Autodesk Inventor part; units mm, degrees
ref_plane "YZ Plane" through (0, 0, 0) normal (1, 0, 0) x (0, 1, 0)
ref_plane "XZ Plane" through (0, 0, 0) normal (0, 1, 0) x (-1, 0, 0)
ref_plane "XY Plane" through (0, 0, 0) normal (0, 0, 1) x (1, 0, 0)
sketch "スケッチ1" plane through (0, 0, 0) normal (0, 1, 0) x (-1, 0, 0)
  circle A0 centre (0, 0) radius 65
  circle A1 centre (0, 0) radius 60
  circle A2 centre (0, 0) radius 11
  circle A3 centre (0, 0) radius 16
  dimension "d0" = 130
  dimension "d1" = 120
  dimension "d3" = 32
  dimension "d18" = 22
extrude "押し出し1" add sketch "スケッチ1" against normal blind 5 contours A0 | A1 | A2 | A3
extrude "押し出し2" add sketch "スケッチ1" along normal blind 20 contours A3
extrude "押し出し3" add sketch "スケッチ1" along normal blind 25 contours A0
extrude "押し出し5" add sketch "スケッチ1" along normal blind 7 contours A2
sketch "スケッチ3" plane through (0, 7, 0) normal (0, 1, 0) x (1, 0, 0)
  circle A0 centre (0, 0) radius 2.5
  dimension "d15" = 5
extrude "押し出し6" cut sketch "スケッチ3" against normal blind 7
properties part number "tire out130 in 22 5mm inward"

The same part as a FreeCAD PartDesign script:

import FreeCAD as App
import Part
import Sketcher
from FreeCAD import Vector

doc = App.newDocument("Part")
body = doc.addObject("PartDesign::Body", "Body")

sketch1 = doc.addObject("Sketcher::SketchObject", "Sketch")
body.addObject(sketch1)
sketch1.AttachmentSupport = (doc.XZ_Plane, [""])
sketch1.MapMode = "FlatFace"
sketch1.addGeometry(Part.Circle(Vector(0, 0, 0), Vector(0, 0, 1), 65), False)
sketch1.addConstraint([
    Sketcher.Constraint("Coincident", 0, 3, -1, 1),
    Sketcher.Constraint("Diameter", 0, 130.0),
])
pad1 = doc.addObject("PartDesign::Pad", "Pad")
body.addObject(pad1)
pad1.Profile = sketch1
pad1.Length = 5

sketch2 = doc.addObject("Sketcher::SketchObject", "Sketch001")
body.addObject(sketch2)
sketch2.AttachmentSupport = (doc.XZ_Plane, [""])
sketch2.MapMode = "FlatFace"
sketch2.addGeometry([
    Part.Circle(Vector(0, 0, 0), Vector(0, 0, 1), 16),
    Part.Circle(Vector(0, 0, 0), Vector(0, 0, 1), 11),
], False)
sketch2.addConstraint([
    Sketcher.Constraint("Coincident", 0, 3, -1, 1),
    Sketcher.Constraint("Coincident", 1, 3, -1, 1),
    Sketcher.Constraint("Diameter", 0, 32.0),
    Sketcher.Constraint("Diameter", 1, 22.0),
])
pad2 = doc.addObject("PartDesign::Pad", "Pad001")
body.addObject(pad2)
pad2.Profile = sketch2
pad2.Length = 20
pad2.Reversed = True

sketch3 = doc.addObject("Sketcher::SketchObject", "Sketch002")
body.addObject(sketch3)
sketch3.AttachmentSupport = (doc.XZ_Plane, [""])
sketch3.MapMode = "FlatFace"
sketch3.addGeometry([
    Part.Circle(Vector(0, 0, 0), Vector(0, 0, 1), 65),
    Part.Circle(Vector(0, 0, 0), Vector(0, 0, 1), 60),
], False)
sketch3.addConstraint([
    Sketcher.Constraint("Coincident", 0, 3, -1, 1),
    Sketcher.Constraint("Coincident", 1, 3, -1, 1),
    Sketcher.Constraint("Diameter", 0, 130.0),
    Sketcher.Constraint("Diameter", 1, 120.0),
])
pad3 = doc.addObject("PartDesign::Pad", "Pad002")
body.addObject(pad3)
pad3.Profile = sketch3
pad3.Length = 25
pad3.Reversed = True

sketch4 = doc.addObject("Sketcher::SketchObject", "Sketch003")
body.addObject(sketch4)
sketch4.AttachmentSupport = (doc.XZ_Plane, [""])
sketch4.MapMode = "FlatFace"
sketch4.addGeometry(Part.Circle(Vector(0, 0, 0), Vector(0, 0, 1), 11), False)
sketch4.addConstraint([
    Sketcher.Constraint("Coincident", 0, 3, -1, 1),
    Sketcher.Constraint("Diameter", 0, 22.0),
])
pad4 = doc.addObject("PartDesign::Pad", "Pad003")
body.addObject(pad4)
pad4.Profile = sketch4
pad4.Length = 7
pad4.Reversed = True

sketch5 = doc.addObject("Sketcher::SketchObject", "Sketch004")
body.addObject(sketch5)
sketch5.AttachmentSupport = (doc.XZ_Plane, [""])
sketch5.MapMode = "FlatFace"
sketch5.AttachmentOffset = App.Placement(Vector(0, 0, -7), App.Rotation())
sketch5.addGeometry(Part.Circle(Vector(0, 0, 0), Vector(0, 0, 1), 2.5), False)
sketch5.addConstraint([
    Sketcher.Constraint("Coincident", 0, 3, -1, 1),
    Sketcher.Constraint("Diameter", 0, 5.0),
])
pocket1 = doc.addObject("PartDesign::Pocket", "Pocket")
body.addObject(pocket1)
pocket1.Profile = sketch5
pocket1.Length = 7
pocket1.Reversed = True

doc.recompute()
